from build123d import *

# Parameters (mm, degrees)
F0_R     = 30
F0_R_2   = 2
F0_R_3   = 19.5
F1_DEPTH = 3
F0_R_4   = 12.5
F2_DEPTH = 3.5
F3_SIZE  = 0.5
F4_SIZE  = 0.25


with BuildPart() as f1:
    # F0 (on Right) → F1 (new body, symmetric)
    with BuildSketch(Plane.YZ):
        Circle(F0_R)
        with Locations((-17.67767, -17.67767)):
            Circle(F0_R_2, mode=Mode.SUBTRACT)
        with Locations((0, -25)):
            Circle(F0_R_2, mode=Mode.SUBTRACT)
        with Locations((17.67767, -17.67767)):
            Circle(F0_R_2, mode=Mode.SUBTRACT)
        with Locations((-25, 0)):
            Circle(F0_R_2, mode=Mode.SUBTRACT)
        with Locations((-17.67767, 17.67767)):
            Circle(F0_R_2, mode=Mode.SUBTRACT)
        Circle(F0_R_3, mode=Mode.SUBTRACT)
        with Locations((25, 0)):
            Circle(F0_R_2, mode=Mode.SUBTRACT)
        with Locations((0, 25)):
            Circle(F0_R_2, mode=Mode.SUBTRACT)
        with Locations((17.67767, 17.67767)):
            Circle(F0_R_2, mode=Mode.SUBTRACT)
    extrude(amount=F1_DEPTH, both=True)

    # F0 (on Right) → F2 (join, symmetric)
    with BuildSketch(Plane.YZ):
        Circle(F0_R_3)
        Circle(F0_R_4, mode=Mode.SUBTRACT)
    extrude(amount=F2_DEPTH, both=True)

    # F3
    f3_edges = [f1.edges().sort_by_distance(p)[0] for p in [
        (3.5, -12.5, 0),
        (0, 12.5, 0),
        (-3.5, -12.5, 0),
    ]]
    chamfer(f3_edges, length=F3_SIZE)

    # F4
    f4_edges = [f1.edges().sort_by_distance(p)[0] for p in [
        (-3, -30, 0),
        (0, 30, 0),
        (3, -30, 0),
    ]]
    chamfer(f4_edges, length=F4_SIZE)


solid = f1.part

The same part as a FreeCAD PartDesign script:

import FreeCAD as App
import Part
import Sketcher
from FreeCAD import Vector


def edges_at(feature, points):
    """Names of the edges that pass closest to the given points."""
    edges = feature.Shape.Edges
    near = lambda p: min(range(len(edges)), key=lambda i: edges[i].distToShape(Part.Vertex(*p))[0])
    return sorted({f"Edge{near(p) + 1}" for p in points})

doc = App.newDocument("Part")
body = doc.addObject("PartDesign::Body", "Body")

# Sketch on YZ plane
sketch1 = doc.addObject("Sketcher::SketchObject", "Sketch")
body.addObject(sketch1)
sketch1.AttachmentSupport = (doc.YZ_Plane, [""])
sketch1.MapMode = "FlatFace"
sketch1.addGeometry([
    Part.Circle(Vector(0, 0, 0), Vector(0, 0, 1), 30),  # 0
    Part.Circle(Vector(-17.7, -17.7, 0), Vector(0, 0, 1), 2),  # 1
    Part.Circle(Vector(0, -25, 0), Vector(0, 0, 1), 2),  # 2
    Part.Circle(Vector(17.7, -17.7, 0), Vector(0, 0, 1), 2),  # 3
    Part.Circle(Vector(-25, 0, 0), Vector(0, 0, 1), 2),  # 4
    Part.Circle(Vector(-17.7, 17.7, 0), Vector(0, 0, 1), 2),  # 5
    Part.Circle(Vector(0, 0, 0), Vector(0, 0, 1), 19.5),  # 6
    Part.Circle(Vector(25, 0, 0), Vector(0, 0, 1), 2),  # 7
    Part.Circle(Vector(0, 25, 0), Vector(0, 0, 1), 2),  # 8
    Part.Circle(Vector(17.7, 17.7, 0), Vector(0, 0, 1), 2),  # 9
], False)
sketch1.addConstraint([
    Sketcher.Constraint("Coincident", 0, 3, -1, 1),
    Sketcher.Constraint("Coincident", 6, 3, -1, 1),
    Sketcher.Constraint("Equal", 1, 2),
    Sketcher.Constraint("Equal", 2, 3),
    Sketcher.Constraint("Equal", 3, 4),
    Sketcher.Constraint("Equal", 4, 5),
    Sketcher.Constraint("Equal", 5, 7),
    Sketcher.Constraint("Equal", 7, 8),
    Sketcher.Constraint("Equal", 8, 9),
    Sketcher.Constraint("Symmetric", 3, 3, 5, 3, -1, 1),
    Sketcher.Constraint("Symmetric", 4, 3, 7, 3, -1, 1),
    Sketcher.Constraint("Symmetric", 2, 3, 8, 3, -1, 1),
    Sketcher.Constraint("Symmetric", 1, 3, 9, 3, -1, 1),
    Sketcher.Constraint("Symmetric", 1, 3, 3, 3, -2),
    Sketcher.Constraint("PointOnObject", 2, 3, -2),
    Sketcher.Constraint("PointOnObject", 4, 3, -1),
    Sketcher.Constraint("Diameter", 0, 60.0),
    Sketcher.Constraint("Diameter", 1, 4.0),
    Sketcher.Constraint("Diameter", 6, 39.0),
    Sketcher.Constraint("DistanceY", 2, 3, -1, 1, 25.0),
    Sketcher.Constraint("DistanceX", 4, 3, -1, 1, 25.0),
    Sketcher.Constraint("DistanceX", 1, 3, -1, 1, 17.67767),
    Sketcher.Constraint("DistanceY", 1, 3, -1, 1, 17.67767),
])
pad1 = doc.addObject("PartDesign::Pad", "Pad")
body.addObject(pad1)
pad1.Profile = sketch1
pad1.Length = 6
pad1.Midplane = True

# Sketch on YZ plane
sketch2 = doc.addObject("Sketcher::SketchObject", "Sketch001")
body.addObject(sketch2)
sketch2.AttachmentSupport = (doc.YZ_Plane, [""])
sketch2.MapMode = "FlatFace"
sketch2.addGeometry([
    Part.Circle(Vector(0, 0, 0), Vector(0, 0, 1), 20),
    Part.Circle(Vector(0, 0, 0), Vector(0, 0, 1), 12),
], False)
sketch2.addConstraint([
    Sketcher.Constraint("Coincident", 0, 3, -1, 1),
    Sketcher.Constraint("Coincident", 1, 3, -1, 1),
    Sketcher.Constraint("Diameter", 0, 39.0),
    Sketcher.Constraint("Diameter", 1, 25.0),
])
pad2 = doc.addObject("PartDesign::Pad", "Pad001")
body.addObject(pad2)
pad2.Profile = sketch2
pad2.Length = 7
pad2.Midplane = True
doc.recompute()

chamfer = doc.addObject("PartDesign::Chamfer", "Chamfer")
body.addObject(chamfer)
chamfer.Base = (pad2, edges_at(pad2, [(3.5, -12.5, 0), (0, 12.5, 0), (-3.5, -12.5, 0)]))
chamfer.Size = 0.5
doc.recompute()

chamfer2 = doc.addObject("PartDesign::Chamfer", "Chamfer001")
body.addObject(chamfer2)
chamfer2.Base = (chamfer, edges_at(chamfer, [(-3, -30, 0), (0, 30, 0), (3, -30, 0)]))
chamfer2.Size = 0.25

doc.recompute()
